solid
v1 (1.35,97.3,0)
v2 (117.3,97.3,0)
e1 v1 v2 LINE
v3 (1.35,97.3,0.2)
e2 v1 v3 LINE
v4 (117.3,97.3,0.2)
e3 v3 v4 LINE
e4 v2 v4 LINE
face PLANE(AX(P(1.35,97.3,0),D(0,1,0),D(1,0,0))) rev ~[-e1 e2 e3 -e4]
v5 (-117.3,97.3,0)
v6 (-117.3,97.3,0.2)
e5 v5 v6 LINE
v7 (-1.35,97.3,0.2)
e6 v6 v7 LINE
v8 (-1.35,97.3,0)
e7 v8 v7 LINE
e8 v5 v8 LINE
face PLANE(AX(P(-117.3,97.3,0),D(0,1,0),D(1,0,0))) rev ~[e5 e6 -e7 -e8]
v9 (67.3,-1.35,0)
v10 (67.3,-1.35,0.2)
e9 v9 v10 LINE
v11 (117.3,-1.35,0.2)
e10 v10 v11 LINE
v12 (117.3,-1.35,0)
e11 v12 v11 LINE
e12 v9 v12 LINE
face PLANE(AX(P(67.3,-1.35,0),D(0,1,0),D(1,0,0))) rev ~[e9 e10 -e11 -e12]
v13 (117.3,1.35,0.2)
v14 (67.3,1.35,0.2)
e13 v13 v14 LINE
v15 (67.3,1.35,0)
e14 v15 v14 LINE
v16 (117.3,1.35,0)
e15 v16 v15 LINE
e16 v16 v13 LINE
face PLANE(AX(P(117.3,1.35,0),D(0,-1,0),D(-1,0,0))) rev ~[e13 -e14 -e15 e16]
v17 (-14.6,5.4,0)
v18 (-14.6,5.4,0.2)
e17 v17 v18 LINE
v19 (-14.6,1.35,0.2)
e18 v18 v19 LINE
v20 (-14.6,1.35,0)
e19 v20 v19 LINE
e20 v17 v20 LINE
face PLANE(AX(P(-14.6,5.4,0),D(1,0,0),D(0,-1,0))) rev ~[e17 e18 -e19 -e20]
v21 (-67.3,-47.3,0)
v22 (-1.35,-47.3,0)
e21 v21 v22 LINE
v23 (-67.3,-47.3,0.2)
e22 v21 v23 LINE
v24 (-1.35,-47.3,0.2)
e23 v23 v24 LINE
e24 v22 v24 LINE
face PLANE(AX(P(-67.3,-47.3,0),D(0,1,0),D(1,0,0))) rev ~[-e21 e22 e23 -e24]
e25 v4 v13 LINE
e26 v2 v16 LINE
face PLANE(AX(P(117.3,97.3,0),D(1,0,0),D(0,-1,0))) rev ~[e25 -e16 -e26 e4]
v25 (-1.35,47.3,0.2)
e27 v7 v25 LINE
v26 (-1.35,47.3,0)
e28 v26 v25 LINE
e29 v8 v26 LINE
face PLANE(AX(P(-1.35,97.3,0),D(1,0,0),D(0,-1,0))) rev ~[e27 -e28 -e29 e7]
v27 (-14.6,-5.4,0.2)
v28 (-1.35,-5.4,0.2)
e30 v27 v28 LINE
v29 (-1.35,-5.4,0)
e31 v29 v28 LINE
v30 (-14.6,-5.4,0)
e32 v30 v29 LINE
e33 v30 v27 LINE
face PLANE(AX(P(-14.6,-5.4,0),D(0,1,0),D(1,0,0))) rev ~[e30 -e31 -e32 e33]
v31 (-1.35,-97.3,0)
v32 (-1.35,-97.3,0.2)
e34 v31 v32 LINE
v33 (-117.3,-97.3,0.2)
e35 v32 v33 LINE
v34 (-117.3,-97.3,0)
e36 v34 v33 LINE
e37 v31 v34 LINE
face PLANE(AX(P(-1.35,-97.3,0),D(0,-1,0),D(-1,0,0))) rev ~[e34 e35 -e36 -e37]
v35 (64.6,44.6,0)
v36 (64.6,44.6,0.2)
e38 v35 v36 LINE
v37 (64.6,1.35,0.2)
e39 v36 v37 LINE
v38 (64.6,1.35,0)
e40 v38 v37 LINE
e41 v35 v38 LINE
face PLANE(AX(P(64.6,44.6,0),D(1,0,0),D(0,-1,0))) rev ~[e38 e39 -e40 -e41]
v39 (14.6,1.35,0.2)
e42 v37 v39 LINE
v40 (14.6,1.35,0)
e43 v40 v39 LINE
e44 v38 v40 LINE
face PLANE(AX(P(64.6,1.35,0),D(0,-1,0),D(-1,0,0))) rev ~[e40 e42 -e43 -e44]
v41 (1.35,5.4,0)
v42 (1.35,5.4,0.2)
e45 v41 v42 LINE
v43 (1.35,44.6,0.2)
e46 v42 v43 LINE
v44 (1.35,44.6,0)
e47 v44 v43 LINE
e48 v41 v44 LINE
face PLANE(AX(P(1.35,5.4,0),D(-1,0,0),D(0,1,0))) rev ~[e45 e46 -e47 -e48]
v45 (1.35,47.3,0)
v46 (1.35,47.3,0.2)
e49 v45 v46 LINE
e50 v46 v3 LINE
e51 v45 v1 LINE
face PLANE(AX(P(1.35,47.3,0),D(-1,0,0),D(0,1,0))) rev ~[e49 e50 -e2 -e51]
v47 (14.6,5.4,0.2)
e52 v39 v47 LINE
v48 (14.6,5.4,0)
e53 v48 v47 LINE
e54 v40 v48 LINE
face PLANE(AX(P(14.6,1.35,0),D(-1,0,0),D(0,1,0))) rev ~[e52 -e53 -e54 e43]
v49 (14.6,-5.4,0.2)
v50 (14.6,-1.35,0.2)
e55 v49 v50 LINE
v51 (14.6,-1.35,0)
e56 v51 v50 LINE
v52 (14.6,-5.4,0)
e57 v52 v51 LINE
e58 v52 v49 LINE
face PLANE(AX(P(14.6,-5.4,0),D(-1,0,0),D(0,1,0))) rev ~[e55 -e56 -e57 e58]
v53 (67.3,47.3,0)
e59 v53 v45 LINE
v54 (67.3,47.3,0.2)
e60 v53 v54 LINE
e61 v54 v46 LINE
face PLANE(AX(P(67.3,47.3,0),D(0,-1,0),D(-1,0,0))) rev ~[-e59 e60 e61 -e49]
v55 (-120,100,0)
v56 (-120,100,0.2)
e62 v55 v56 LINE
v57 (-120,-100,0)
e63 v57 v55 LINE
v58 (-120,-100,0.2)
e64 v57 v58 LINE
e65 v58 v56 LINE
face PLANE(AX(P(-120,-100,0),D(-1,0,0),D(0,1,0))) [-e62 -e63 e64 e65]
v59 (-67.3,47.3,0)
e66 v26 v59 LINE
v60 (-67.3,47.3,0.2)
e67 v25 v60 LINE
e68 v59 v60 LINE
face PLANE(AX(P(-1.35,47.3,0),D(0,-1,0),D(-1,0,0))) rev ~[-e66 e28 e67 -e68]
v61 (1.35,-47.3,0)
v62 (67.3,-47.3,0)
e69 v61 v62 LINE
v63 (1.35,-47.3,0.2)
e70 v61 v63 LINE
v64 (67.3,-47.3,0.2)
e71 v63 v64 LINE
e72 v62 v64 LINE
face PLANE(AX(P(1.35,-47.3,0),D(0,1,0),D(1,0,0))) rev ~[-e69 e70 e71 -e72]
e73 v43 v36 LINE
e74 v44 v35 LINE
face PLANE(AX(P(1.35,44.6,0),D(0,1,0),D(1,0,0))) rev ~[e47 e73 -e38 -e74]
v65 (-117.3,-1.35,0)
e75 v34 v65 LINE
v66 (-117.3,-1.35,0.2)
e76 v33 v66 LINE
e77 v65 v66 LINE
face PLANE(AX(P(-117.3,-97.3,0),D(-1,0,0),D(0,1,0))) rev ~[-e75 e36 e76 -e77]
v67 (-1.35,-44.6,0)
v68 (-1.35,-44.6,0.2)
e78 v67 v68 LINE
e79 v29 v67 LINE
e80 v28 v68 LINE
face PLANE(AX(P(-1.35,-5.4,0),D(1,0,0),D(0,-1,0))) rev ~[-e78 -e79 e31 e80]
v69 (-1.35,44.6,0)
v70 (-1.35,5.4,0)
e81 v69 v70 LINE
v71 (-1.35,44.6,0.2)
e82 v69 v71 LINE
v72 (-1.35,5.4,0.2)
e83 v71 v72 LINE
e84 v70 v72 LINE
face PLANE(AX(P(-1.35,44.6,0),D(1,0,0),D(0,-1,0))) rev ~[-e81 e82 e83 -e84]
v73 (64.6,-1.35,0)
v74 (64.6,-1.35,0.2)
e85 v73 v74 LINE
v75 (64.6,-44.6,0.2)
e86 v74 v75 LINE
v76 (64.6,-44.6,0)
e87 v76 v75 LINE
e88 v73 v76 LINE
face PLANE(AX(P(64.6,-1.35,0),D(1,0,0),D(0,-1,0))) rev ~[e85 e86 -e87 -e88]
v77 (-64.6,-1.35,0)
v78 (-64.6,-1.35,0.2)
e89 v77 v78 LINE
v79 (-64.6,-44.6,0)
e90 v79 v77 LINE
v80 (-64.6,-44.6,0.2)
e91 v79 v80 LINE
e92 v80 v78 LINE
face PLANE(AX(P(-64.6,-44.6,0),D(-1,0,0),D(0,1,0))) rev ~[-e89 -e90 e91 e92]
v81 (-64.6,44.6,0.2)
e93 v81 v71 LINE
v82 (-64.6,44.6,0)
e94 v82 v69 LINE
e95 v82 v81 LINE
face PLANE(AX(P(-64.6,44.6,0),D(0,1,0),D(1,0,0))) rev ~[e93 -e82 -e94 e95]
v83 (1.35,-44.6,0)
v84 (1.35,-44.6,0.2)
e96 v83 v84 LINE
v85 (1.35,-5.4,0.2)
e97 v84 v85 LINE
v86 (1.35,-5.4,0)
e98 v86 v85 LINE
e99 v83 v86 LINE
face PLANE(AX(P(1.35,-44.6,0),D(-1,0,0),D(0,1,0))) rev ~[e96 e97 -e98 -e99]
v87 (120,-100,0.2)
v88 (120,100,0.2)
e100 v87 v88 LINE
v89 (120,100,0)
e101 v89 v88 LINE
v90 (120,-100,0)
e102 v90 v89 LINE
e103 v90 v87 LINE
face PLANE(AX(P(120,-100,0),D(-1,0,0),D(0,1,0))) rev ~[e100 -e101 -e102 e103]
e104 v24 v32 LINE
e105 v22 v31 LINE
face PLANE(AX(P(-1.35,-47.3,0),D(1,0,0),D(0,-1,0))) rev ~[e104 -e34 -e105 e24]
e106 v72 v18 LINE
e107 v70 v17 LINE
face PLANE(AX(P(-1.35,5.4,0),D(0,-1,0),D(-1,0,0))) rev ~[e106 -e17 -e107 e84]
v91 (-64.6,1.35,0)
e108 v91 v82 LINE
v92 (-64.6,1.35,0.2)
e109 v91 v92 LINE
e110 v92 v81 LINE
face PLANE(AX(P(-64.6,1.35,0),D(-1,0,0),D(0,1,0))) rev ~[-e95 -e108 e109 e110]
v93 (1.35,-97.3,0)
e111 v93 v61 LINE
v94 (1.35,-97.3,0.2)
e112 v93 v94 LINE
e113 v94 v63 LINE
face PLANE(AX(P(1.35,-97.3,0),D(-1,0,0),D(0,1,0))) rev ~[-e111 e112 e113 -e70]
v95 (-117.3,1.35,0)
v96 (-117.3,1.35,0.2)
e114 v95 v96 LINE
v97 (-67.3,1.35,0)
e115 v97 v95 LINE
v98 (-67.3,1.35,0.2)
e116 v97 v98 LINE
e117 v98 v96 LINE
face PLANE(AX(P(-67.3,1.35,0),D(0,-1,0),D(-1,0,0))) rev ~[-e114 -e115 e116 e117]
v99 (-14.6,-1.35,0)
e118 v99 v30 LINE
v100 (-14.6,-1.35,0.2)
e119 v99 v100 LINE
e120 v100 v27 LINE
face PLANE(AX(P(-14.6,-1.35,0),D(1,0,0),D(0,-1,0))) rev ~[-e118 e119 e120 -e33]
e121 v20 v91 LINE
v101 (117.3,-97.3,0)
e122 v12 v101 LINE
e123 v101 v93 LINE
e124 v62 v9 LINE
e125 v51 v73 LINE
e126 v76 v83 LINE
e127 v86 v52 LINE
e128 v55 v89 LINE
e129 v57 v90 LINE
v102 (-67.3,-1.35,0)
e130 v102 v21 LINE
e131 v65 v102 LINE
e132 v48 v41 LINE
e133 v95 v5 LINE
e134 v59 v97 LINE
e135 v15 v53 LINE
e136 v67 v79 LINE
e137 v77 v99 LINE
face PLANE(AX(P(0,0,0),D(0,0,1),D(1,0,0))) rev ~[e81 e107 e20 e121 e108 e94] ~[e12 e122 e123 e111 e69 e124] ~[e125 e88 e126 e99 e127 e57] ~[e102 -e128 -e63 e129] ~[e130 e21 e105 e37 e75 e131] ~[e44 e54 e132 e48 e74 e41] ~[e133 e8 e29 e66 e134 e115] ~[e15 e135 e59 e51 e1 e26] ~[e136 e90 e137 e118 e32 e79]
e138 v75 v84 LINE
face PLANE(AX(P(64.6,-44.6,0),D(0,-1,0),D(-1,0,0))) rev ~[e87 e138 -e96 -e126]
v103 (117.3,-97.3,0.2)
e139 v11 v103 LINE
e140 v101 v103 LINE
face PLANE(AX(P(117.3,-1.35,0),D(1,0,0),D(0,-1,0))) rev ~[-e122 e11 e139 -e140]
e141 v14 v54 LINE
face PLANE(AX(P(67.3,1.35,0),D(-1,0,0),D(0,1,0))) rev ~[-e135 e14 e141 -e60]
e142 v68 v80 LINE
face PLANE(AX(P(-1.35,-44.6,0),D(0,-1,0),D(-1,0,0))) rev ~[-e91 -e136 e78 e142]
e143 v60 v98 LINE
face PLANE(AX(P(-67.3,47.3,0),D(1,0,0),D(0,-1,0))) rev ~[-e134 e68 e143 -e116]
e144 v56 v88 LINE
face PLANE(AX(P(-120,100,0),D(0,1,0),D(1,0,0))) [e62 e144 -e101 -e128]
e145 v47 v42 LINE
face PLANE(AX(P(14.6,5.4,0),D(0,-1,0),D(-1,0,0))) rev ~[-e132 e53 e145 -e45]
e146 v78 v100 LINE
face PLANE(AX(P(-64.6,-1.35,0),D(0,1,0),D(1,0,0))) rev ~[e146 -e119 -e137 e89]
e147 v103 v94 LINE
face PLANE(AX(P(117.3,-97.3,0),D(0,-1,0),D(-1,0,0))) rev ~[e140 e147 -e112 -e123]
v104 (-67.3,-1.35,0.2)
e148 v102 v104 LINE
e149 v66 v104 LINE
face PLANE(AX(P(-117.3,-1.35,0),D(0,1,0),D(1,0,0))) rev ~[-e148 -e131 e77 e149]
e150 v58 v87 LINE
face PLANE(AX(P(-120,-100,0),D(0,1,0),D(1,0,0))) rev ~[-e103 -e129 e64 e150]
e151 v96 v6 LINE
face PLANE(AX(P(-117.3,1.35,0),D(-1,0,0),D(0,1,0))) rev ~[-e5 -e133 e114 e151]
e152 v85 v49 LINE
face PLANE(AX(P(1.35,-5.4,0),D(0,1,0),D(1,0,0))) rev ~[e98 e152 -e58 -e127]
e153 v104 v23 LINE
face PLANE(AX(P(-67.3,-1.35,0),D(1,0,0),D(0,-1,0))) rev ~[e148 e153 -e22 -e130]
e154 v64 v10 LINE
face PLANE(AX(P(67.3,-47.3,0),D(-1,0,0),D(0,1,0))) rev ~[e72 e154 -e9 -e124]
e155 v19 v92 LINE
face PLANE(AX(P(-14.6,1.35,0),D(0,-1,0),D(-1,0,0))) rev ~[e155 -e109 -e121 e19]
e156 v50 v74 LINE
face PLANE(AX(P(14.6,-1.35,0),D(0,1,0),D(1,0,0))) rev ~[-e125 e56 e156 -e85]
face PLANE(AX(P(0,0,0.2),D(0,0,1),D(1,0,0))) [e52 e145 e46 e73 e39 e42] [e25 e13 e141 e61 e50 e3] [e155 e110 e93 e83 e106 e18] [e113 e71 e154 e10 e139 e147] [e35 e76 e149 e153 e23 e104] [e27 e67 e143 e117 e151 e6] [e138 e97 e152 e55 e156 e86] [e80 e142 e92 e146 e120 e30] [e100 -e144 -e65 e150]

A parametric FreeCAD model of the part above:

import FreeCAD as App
import Part
import Sketcher
Q = App.Units.Quantity


def add_polygon(sketch, points):
    """Adds a closed chain of lines whose ends are joined by coincident constraints."""
    first, n = sketch.GeometryCount, len(points)
    for a, b in zip(points, points[1:] + points[:1]):
        sketch.addGeometry(Part.LineSegment(App.Vector(*a, 0), App.Vector(*b, 0)), False)
    for i in range(n):
        sketch.addConstraint(Sketcher.Constraint("Coincident", first + i, 2, first + (i + 1) % n, 1))

doc = App.newDocument("Part")
body = doc.addObject("PartDesign::Body", "Body")

sketch1 = body.newObject("Sketcher::SketchObject", "Sketch")
sketch1.AttachmentSupport = (doc.getObject("XY_Plane"), [""])
sketch1.MapMode = "FlatFace"
add_polygon(sketch1, [(-120, 100), (-120, -100), (120, -100), (120, 100)])
add_polygon(sketch1, [(-1.4, -47.3), (-1.4, -97.3), (-117.3, -97.3), (-117.3, -1.4), (-67.3, -1.4), (-67.3, -47.3)])
add_polygon(sketch1, [(-1.4, -5.4), (-1.4, -44.6), (-64.6, -44.6), (-64.6, -1.4), (-14.6, -1.4), (-14.6, -5.4)])
add_polygon(sketch1, [(67.3, -1.4), (117.3, -1.4), (117.3, -97.3), (1.4, -97.3), (1.4, -47.3), (67.3, -47.3)])
add_polygon(sketch1, [(14.6, -1.4), (64.6, -1.4), (64.6, -44.6), (1.4, -44.6), (1.4, -5.4), (14.6, -5.4)])
add_polygon(sketch1, [(-1.4, 5.4), (-14.6, 5.4), (-14.6, 1.4), (-64.6, 1.4), (-64.6, 44.6), (-1.4, 44.6)])
add_polygon(sketch1, [(-117.3, 1.4), (-117.3, 97.3), (-1.4, 97.3), (-1.4, 47.3), (-67.3, 47.3), (-67.3, 1.4)])
add_polygon(sketch1, [(1.4, 5.4), (1.4, 44.6), (64.6, 44.6), (64.6, 1.4), (14.6, 1.4), (14.6, 5.4)])
add_polygon(sketch1, [(1.4, 47.3), (1.4, 97.3), (117.3, 97.3), (117.3, 1.4), (67.3, 1.4), (67.3, 47.3)])
sketch1.addConstraint([
    Sketcher.Constraint("Vertical", 0),
    Sketcher.Constraint("Horizontal", 1),
    Sketcher.Constraint("Vertical", 2),
    Sketcher.Constraint("Horizontal", 3),
    Sketcher.Constraint("Vertical", 4),
    Sketcher.Constraint("Horizontal", 5),
    Sketcher.Constraint("Vertical", 6),
    Sketcher.Constraint("Horizontal", 7),
    Sketcher.Constraint("Vertical", 8),
    Sketcher.Constraint("Horizontal", 9),
    Sketcher.Constraint("Vertical", 10),
    Sketcher.Constraint("Horizontal", 11),
    Sketcher.Constraint("Vertical", 12),
    Sketcher.Constraint("Horizontal", 13),
    Sketcher.Constraint("Vertical", 14),
    Sketcher.Constraint("Horizontal", 15),
    Sketcher.Constraint("Horizontal", 16),
    Sketcher.Constraint("Vertical", 17),
    Sketcher.Constraint("Horizontal", 18),
    Sketcher.Constraint("Vertical", 19),
    Sketcher.Constraint("Horizontal", 20),
    Sketcher.Constraint("Vertical", 21),
    Sketcher.Constraint("Horizontal", 22),
    Sketcher.Constraint("Vertical", 23),
    Sketcher.Constraint("Horizontal", 24),
    Sketcher.Constraint("Vertical", 25),
    Sketcher.Constraint("Horizontal", 26),
    Sketcher.Constraint("Vertical", 27),
    Sketcher.Constraint("Horizontal", 28),
    Sketcher.Constraint("Vertical", 29),
    Sketcher.Constraint("Horizontal", 30),
    Sketcher.Constraint("Vertical", 31),
    Sketcher.Constraint("Horizontal", 32),
    Sketcher.Constraint("Vertical", 33),
    Sketcher.Constraint("Vertical", 34),
    Sketcher.Constraint("Horizontal", 35),
    Sketcher.Constraint("Vertical", 36),
    Sketcher.Constraint("Horizontal", 37),
    Sketcher.Constraint("Vertical", 38),
    Sketcher.Constraint("Horizontal", 39),
    Sketcher.Constraint("Vertical", 40),
    Sketcher.Constraint("Horizontal", 41),
    Sketcher.Constraint("Vertical", 42),
    Sketcher.Constraint("Horizontal", 43),
    Sketcher.Constraint("Vertical", 44),
    Sketcher.Constraint("Horizontal", 45),
    Sketcher.Constraint("Vertical", 46),
    Sketcher.Constraint("Horizontal", 47),
    Sketcher.Constraint("Vertical", 48),
    Sketcher.Constraint("Horizontal", 49),
    Sketcher.Constraint("Vertical", 50),
    Sketcher.Constraint("Horizontal", 51),
    Sketcher.Constraint("Symmetric", 0, 2, 2, 2, -1, 1),
    Sketcher.Constraint("Symmetric", 26, 2, 28, 2, -1, 1),
    Sketcher.Constraint("Symmetric", 22, 2, 30, 2, -1, 1),
    Sketcher.Constraint("Symmetric", 24, 2, 32, 2, -1, 1),
    Sketcher.Constraint("Symmetric", 17, 2, 34, 2, -1, 1),
    Sketcher.Constraint("Symmetric", 19, 2, 36, 2, -1, 1),
    Sketcher.Constraint("Symmetric", 21, 2, 38, 2, -1, 1),
    Sketcher.Constraint("Symmetric", 10, 2, 40, 2, -1, 1),
    Sketcher.Constraint("Symmetric", 12, 2, 42, 2, -1, 1),
    Sketcher.Constraint("Symmetric", 14, 2, 44, 2, -1, 1),
    Sketcher.Constraint("Symmetric", 4, 2, 46, 2, -1, 1),
    Sketcher.Constraint("Symmetric", 6, 2, 48, 2, -1, 1),
    Sketcher.Constraint("Symmetric", 8, 2, 50, 2, -1, 1),
    Sketcher.Constraint("Symmetric", 6, 2, 16, 2, -2),
    Sketcher.Constraint("Symmetric", 4, 2, 18, 2, -2),
    Sketcher.Constraint("Symmetric", 8, 2, 20, 2, -2),
    Sketcher.Constraint("Symmetric", 12, 2, 22, 2, -2),
    Sketcher.Constraint("Symmetric", 10, 2, 24, 2, -2),
    Sketcher.Constraint("Symmetric", 14, 2, 26, 2, -2),
    Sketcher.Constraint("Horizontal", 7, 2, 12, 2),
    Sketcher.Constraint("Vertical", 9, 2, 10, 2),
    Sketcher.Constraint("Equal", 7, 13),
    Sketcher.Constraint("Equal", 49, 4),
    Sketcher.Constraint("DistanceX", 1, 1, 1, 2, Q("240 mm")),
    Sketcher.Constraint("DistanceX", 7, 1, 7, 2, Q("50 mm")),
    Sketcher.Constraint("DistanceY", 0, 2, 0, 1, Q("200 mm")),
    Sketcher.Constraint("DistanceY", 10, 2, 10, 1, Q("39.2 mm")),
    Sketcher.Constraint("DistanceY", 15, 2, 32, 2, Q("50 mm")),
    Sketcher.Constraint("DistanceX", 5, 2, 5, 1, Q("115.95 mm")),
    Sketcher.Constraint("DistanceX", 11, 2, 11, 1, Q("63.25 mm")),
    Sketcher.Constraint("DistanceY", 6, 1, 6, 2, Q("95.95 mm")),
    Sketcher.Constraint("DistanceY", 12, 1, 12, 2, Q("43.25 mm")),
    Sketcher.Constraint("DistanceX", 5, 2, -1, 1, Q("117.3 mm")),
])
pad1 = body.newObject("PartDesign::Pad", "Pad")
pad1.Profile = sketch1
pad1.Length = 0.2

doc.recompute()
